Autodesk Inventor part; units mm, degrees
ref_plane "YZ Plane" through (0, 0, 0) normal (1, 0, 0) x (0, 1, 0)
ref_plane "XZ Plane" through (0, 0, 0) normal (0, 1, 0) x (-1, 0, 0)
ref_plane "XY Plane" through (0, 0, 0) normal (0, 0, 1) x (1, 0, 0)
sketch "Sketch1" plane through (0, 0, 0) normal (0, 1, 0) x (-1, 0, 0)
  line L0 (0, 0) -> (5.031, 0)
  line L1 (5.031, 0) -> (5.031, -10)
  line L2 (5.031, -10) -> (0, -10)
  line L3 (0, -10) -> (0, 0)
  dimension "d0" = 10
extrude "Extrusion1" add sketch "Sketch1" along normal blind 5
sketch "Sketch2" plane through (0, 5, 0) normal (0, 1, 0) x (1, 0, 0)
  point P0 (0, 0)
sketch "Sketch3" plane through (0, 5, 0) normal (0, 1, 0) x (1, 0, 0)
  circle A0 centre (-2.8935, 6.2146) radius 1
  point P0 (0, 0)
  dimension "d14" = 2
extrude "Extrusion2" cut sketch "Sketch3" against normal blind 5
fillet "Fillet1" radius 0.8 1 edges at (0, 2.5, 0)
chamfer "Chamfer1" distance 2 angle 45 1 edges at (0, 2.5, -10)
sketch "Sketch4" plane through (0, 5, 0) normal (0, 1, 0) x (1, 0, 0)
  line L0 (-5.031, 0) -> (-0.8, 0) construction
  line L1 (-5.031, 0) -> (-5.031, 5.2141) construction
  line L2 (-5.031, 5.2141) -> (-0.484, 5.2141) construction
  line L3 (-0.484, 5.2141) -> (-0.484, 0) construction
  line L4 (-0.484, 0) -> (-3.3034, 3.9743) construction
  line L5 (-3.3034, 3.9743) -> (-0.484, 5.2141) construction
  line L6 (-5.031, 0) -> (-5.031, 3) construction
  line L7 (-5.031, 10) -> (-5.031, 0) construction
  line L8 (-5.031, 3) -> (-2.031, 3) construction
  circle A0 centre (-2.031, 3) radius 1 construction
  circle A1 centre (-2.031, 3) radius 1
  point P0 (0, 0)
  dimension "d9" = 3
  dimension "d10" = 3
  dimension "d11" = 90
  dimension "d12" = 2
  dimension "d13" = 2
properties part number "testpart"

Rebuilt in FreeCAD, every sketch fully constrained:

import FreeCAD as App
import Part
import Sketcher

V = App.Vector
Q = App.Units.Quantity


def edges_at(feature, points):
    """Names of the edges that pass closest to the given points."""
    edges = feature.Shape.Edges
    near = lambda p: min(range(len(edges)), key=lambda i: edges[i].distToShape(Part.Vertex(*p))[0])
    return sorted({f"Edge{near(p) + 1}" for p in points})

doc = App.newDocument("Part")
body = doc.addObject("PartDesign::Body", "Body")

# Sketch on XZ plane
sketch1 = doc.addObject("Sketcher::SketchObject", "Sketch")
body.addObject(sketch1)
sketch1.AttachmentSupport = (doc.XZ_Plane, [""])
sketch1.MapMode = "FlatFace"
sketch1.addGeometry(Part.LineSegment(V(-5, 0, 0), V(0, 0, 0)), False)
sketch1.addGeometry(Part.LineSegment(V(0, 0, 0), V(0, -10, 0)), False)
sketch1.addGeometry(Part.LineSegment(V(0, -10, 0), V(-5, -10, 0)), False)
sketch1.addGeometry(Part.LineSegment(V(-5, -10, 0), V(-5, 0, 0)), False)
sketch1.addConstraint(Sketcher.Constraint("Coincident", 0, 2, 1, 1))
sketch1.addConstraint(Sketcher.Constraint("Coincident", 1, 2, 2, 1))
sketch1.addConstraint(Sketcher.Constraint("Coincident", 2, 2, 3, 1))
sketch1.addConstraint(Sketcher.Constraint("Coincident", 3, 2, 0, 1))
sketch1.addConstraint(Sketcher.Constraint("Horizontal", 0))
sketch1.addConstraint(Sketcher.Constraint("Vertical", 1))
sketch1.addConstraint(Sketcher.Constraint("Horizontal", 2))
sketch1.addConstraint(Sketcher.Constraint("Vertical", 3))
sketch1.addConstraint(Sketcher.Constraint("Coincident", 0, 2, -1, 1))
sketch1.addConstraint(Sketcher.Constraint("DistanceY", 1, 2, 1, 1, Q("10 mm")))
sketch1.addConstraint(Sketcher.Constraint("DistanceX", 0, 1, 0, 2, Q("5.031 mm")))
pad1 = doc.addObject("PartDesign::Pad", "Pad")
body.addObject(pad1)
pad1.Profile = sketch1
pad1.Length = 5
pad1.Reversed = True

# Sketch on XZ plane
sketch2 = doc.addObject("Sketcher::SketchObject", "Sketch001")
body.addObject(sketch2)
sketch2.AttachmentSupport = (doc.XZ_Plane, [""])
sketch2.MapMode = "FlatFace"
sketch2.AttachmentOffset = App.Placement(V(0, 0, -5), App.Rotation())
sketch2.addGeometry(Part.Circle(V(-2.9, -6.2, 0), V(0, 0, 1), 1), False)
sketch2.addConstraint(Sketcher.Constraint("Diameter", 0, Q("2 mm")))
sketch2.addConstraint(Sketcher.Constraint("DistanceX", 0, 3, -1, 1, Q("2.8935 mm")))
sketch2.addConstraint(Sketcher.Constraint("DistanceY", 0, 3, -1, 1, Q("6.2146 mm")))
pocket1 = doc.addObject("PartDesign::Pocket", "Pocket")
body.addObject(pocket1)
pocket1.Profile = sketch2
pocket1.Length = 5
pocket1.Reversed = True
doc.recompute()

fillet = doc.addObject("PartDesign::Fillet", "Fillet")
body.addObject(fillet)
fillet.Base = (pocket1, edges_at(pocket1, [(0, 2.5, 0)]))
fillet.Radius = 0.8
doc.recompute()

chamfer = doc.addObject("PartDesign::Chamfer", "Chamfer")
body.addObject(chamfer)
chamfer.Base = (fillet, edges_at(fillet, [(0, 2.5, -10)]))
chamfer.Size = 2

doc.recompute()
